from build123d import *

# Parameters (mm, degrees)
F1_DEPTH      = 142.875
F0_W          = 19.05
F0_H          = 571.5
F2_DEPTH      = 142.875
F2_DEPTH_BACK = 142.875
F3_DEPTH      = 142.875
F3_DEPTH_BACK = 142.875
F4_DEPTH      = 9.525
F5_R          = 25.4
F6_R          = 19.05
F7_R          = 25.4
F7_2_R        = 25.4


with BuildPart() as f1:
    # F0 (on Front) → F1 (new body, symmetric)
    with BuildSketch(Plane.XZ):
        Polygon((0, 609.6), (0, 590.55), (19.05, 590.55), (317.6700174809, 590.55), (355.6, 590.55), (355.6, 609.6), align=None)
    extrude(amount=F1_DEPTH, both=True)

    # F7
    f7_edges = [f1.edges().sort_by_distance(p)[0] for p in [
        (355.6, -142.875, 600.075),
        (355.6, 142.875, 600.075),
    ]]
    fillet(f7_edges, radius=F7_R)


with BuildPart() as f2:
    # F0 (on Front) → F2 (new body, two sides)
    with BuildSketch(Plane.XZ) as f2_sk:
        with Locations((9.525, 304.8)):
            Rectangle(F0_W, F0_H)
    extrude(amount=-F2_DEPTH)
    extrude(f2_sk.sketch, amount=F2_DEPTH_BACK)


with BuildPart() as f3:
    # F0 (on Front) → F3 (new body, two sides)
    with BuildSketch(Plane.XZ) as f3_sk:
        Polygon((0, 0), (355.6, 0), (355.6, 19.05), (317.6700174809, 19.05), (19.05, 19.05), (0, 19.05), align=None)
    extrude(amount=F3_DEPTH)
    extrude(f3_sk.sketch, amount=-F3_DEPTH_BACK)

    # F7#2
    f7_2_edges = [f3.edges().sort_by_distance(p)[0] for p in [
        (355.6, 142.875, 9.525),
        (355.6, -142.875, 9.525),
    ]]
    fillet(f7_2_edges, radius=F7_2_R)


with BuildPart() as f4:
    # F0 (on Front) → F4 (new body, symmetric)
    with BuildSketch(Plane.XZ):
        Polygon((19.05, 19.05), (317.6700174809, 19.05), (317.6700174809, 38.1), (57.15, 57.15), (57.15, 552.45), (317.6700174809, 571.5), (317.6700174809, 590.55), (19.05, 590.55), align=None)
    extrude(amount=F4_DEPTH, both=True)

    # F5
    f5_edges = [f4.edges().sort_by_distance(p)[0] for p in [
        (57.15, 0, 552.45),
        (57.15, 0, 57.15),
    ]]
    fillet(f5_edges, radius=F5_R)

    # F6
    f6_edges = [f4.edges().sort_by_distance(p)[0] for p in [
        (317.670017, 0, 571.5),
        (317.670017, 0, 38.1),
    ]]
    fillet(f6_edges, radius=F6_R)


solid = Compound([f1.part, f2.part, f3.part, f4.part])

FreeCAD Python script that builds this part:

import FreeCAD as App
import Part
import Sketcher

V = App.Vector
Q = App.Units.Quantity


def edges_at(feature, points):
    """Names of the edges that pass closest to the given points."""
    edges = feature.Shape.Edges
    near = lambda p: min(range(len(edges)), key=lambda i: edges[i].distToShape(Part.Vertex(*p))[0])
    return sorted({f"Edge{near(p) + 1}" for p in points})

doc = App.newDocument("Part")
body = doc.addObject("PartDesign::Body", "Body")

# Sketch on XZ plane
sketch1 = body.newObject("Sketcher::SketchObject", "Sketch")
sketch1.AttachmentSupport = (doc.getObject("XZ_Plane"), [""])
sketch1.MapMode = "FlatFace"
sketch1.addGeometry(Part.LineSegment(V(0, 610, 0), V(0, 591, 0)), False)
sketch1.addGeometry(Part.LineSegment(V(0, 591, 0), V(356, 591, 0)), False)
sketch1.addGeometry(Part.LineSegment(V(356, 591, 0), V(356, 610, 0)), False)
sketch1.addGeometry(Part.LineSegment(V(356, 610, 0), V(0, 610, 0)), False)
sketch1.addConstraint(Sketcher.Constraint("Coincident", 0, 2, 1, 1))
sketch1.addConstraint(Sketcher.Constraint("Coincident", 1, 2, 2, 1))
sketch1.addConstraint(Sketcher.Constraint("Coincident", 2, 2, 3, 1))
sketch1.addConstraint(Sketcher.Constraint("Coincident", 3, 2, 0, 1))
sketch1.addConstraint(Sketcher.Constraint("Vertical", 0))
sketch1.addConstraint(Sketcher.Constraint("Horizontal", 1))
sketch1.addConstraint(Sketcher.Constraint("Vertical", 2))
sketch1.addConstraint(Sketcher.Constraint("Horizontal", 3))
sketch1.addConstraint(Sketcher.Constraint("PointOnObject", 0, 2, -2))
sketch1.addConstraint(Sketcher.Constraint("DistanceX", 1, 1, 1, 2, Q("14 in")))
sketch1.addConstraint(Sketcher.Constraint("DistanceY", -1, 1, 2, 2, Q("24 in")))
sketch1.addConstraint(Sketcher.Constraint("DistanceY", 0, 2, 0, 1, Q("0.75 in")))
pad1 = body.newObject("PartDesign::Pad", "Pad")
pad1.Profile = sketch1
pad1.Length = Q("11.25 in")
pad1.Midplane = True
doc.recompute()

fillet = body.newObject("PartDesign::Fillet", "Fillet")
fillet.Base = (pad1, edges_at(pad1, [(355.6, -142.875, 600.075), (355.6, 142.875, 600.075)]))
fillet.Radius = Q("1 in")
body2 = doc.addObject("PartDesign::Body", "Body001")

# Sketch on XZ plane
sketch2 = body2.newObject("Sketcher::SketchObject", "Sketch001")
sketch2.AttachmentSupport = (doc.getObject("XZ_Plane001"), [""])
sketch2.MapMode = "FlatFace"
sketch2.addGeometry(Part.LineSegment(V(0, 591, 0), V(0, 19, 0)), False)
sketch2.addGeometry(Part.LineSegment(V(0, 19, 0), V(19, 19, 0)), False)
sketch2.addGeometry(Part.LineSegment(V(19, 19, 0), V(19, 591, 0)), False)
sketch2.addGeometry(Part.LineSegment(V(19, 591, 0), V(0, 591, 0)), False)
sketch2.addConstraint(Sketcher.Constraint("Coincident", 0, 2, 1, 1))
sketch2.addConstraint(Sketcher.Constraint("Coincident", 1, 2, 2, 1))
sketch2.addConstraint(Sketcher.Constraint("Coincident", 2, 2, 3, 1))
sketch2.addConstraint(Sketcher.Constraint("Coincident", 3, 2, 0, 1))
sketch2.addConstraint(Sketcher.Constraint("Vertical", 0))
sketch2.addConstraint(Sketcher.Constraint("Horizontal", 1))
sketch2.addConstraint(Sketcher.Constraint("Vertical", 2))
sketch2.addConstraint(Sketcher.Constraint("Horizontal", 3))
sketch2.addConstraint(Sketcher.Constraint("PointOnObject", 0, 2, -2))
sketch2.addConstraint(Sketcher.Constraint("DistanceY", 0, 2, 0, 1, Q("22.5 in")))
sketch2.addConstraint(Sketcher.Constraint("DistanceX", 1, 1, 1, 2, Q("0.75 in")))
sketch2.addConstraint(Sketcher.Constraint("DistanceY", -1, 1, 0, 2, Q("0.75 in")))
pad2 = body2.newObject("PartDesign::Pad", "Pad001")
pad2.Profile = sketch2
pad2.Type = "TwoLengths"
pad2.Length = Q("5.625 in")
pad2.Length2 = Q("5.625 in")
pad2.Reversed = True
body3 = doc.addObject("PartDesign::Body", "Body002")

# Sketch on XZ plane
sketch3 = body3.newObject("Sketcher::SketchObject", "Sketch002")
sketch3.AttachmentSupport = (doc.getObject("XZ_Plane002"), [""])
sketch3.MapMode = "FlatFace"
sketch3.addGeometry(Part.LineSegment(V(0, 0, 0), V(356, 0, 0)), False)
sketch3.addGeometry(Part.LineSegment(V(356, 0, 0), V(356, 19, 0)), False)
sketch3.addGeometry(Part.LineSegment(V(356, 19, 0), V(0, 19, 0)), False)
sketch3.addGeometry(Part.LineSegment(V(0, 19, 0), V(0, 0, 0)), False)
sketch3.addConstraint(Sketcher.Constraint("Coincident", 0, 2, 1, 1))
sketch3.addConstraint(Sketcher.Constraint("Coincident", 1, 2, 2, 1))
sketch3.addConstraint(Sketcher.Constraint("Coincident", 2, 2, 3, 1))
sketch3.addConstraint(Sketcher.Constraint("Coincident", 3, 2, 0, 1))
sketch3.addConstraint(Sketcher.Constraint("Horizontal", 0))
sketch3.addConstraint(Sketcher.Constraint("Vertical", 1))
sketch3.addConstraint(Sketcher.Constraint("Horizontal", 2))
sketch3.addConstraint(Sketcher.Constraint("Vertical", 3))
sketch3.addConstraint(Sketcher.Constraint("Coincident", 3, 2, -1, 1))
sketch3.addConstraint(Sketcher.Constraint("DistanceX", 0, 1, 0, 2, Q("14 in")))
sketch3.addConstraint(Sketcher.Constraint("DistanceY", 1, 1, 1, 2, Q("0.75 in")))
pad3 = body3.newObject("PartDesign::Pad", "Pad002")
pad3.Profile = sketch3
pad3.Type = "TwoLengths"
pad3.Length = Q("5.625 in")
pad3.Length2 = Q("5.625 in")
doc.recompute()

fillet2 = body3.newObject("PartDesign::Fillet", "Fillet001")
fillet2.Base = (pad3, edges_at(pad3, [(355.6, 142.875, 9.525), (355.6, -142.875, 9.525)]))
fillet2.Radius = Q("1 in")
body4 = doc.addObject("PartDesign::Body", "Body003")

# Sketch on XZ plane
sketch4 = body4.newObject("Sketcher::SketchObject", "Sketch003")
sketch4.AttachmentSupport = (doc.getObject("XZ_Plane003"), [""])
sketch4.MapMode = "FlatFace"
sketch4.addGeometry(Part.LineSegment(V(19, 19, 0), V(318, 19, 0)), False)
sketch4.addGeometry(Part.LineSegment(V(318, 19, 0), V(318, 38, 0)), False)
sketch4.addGeometry(Part.LineSegment(V(318, 38, 0), V(57, 57, 0)), False)
sketch4.addGeometry(Part.LineSegment(V(57, 57, 0), V(57, 552, 0)), False)
sketch4.addGeometry(Part.LineSegment(V(57, 552, 0), V(318, 572, 0)), False)
sketch4.addGeometry(Part.LineSegment(V(318, 572, 0), V(318, 591, 0)), False)
sketch4.addGeometry(Part.LineSegment(V(318, 591, 0), V(19, 591, 0)), False)
sketch4.addGeometry(Part.LineSegment(V(19, 591, 0), V(19, 19, 0)), False)
sketch4.addConstraint(Sketcher.Constraint("Coincident", 0, 2, 1, 1))
sketch4.addConstraint(Sketcher.Constraint("Coincident", 1, 2, 2, 1))
sketch4.addConstraint(Sketcher.Constraint("Coincident", 2, 2, 3, 1))
sketch4.addConstraint(Sketcher.Constraint("Coincident", 3, 2, 4, 1))
sketch4.addConstraint(Sketcher.Constraint("Coincident", 4, 2, 5, 1))
sketch4.addConstraint(Sketcher.Constraint("Coincident", 5, 2, 6, 1))
sketch4.addConstraint(Sketcher.Constraint("Coincident", 6, 2, 7, 1))
sketch4.addConstraint(Sketcher.Constraint("Coincident", 7, 2, 0, 1))
sketch4.addConstraint(Sketcher.Constraint("Horizontal", 0))
sketch4.addConstraint(Sketcher.Constraint("Vertical", 1))
sketch4.addConstraint(Sketcher.Constraint("Vertical", 3))
sketch4.addConstraint(Sketcher.Constraint("Vertical", 5))
sketch4.addConstraint(Sketcher.Constraint("Horizontal", 6))
sketch4.addConstraint(Sketcher.Constraint("Vertical", 7))
sketch4.addConstraint(Sketcher.Constraint("Vertical", 1, 2, 4, 2))
sketch4.addConstraint(Sketcher.Constraint("Equal", 1, 5))
sketch4.addConstraint(Sketcher.Constraint("Equal", 2, 4))
sketch4.addConstraint(Sketcher.Constraint("DistanceY", 3, 1, 3, 2, Q("19.5 in")))
sketch4.addConstraint(Sketcher.Constraint("DistanceY", 7, 2, 7, 1, Q("22.5 in")))
sketch4.addConstraint(Sketcher.Constraint("DistanceY", 1, 2, 4, 2, Q("21 in")))
sketch4.addConstraint(Sketcher.Constraint("DistanceY", -1, 1, 1, 2, Q("1.5 in")))
sketch4.addConstraint(Sketcher.Constraint("DistanceX", 6, 2, 3, 2, Q("1.5 in")))
sketch4.addConstraint(Sketcher.Constraint("DistanceX", -1, 1, 2, 2, Q("2.25 in")))
sketch4.addConstraint(Sketcher.Constraint("DistanceX", 0, 1, 0, 2, 298.620017))
pad4 = body4.newObject("PartDesign::Pad", "Pad003")
pad4.Profile = sketch4
pad4.Length = Q("0.75 in")
pad4.Midplane = True
doc.recompute()

fillet3 = body4.newObject("PartDesign::Fillet", "Fillet002")
fillet3.Base = (pad4, edges_at(pad4, [(57.15, 0, 552.45), (57.15, 0, 57.15)]))
fillet3.Radius = Q("1 in")
doc.recompute()

fillet4 = body4.newObject("PartDesign::Fillet", "Fillet003")
fillet4.Base = (fillet3, edges_at(fillet3, [(317.67, 0, 571.5), (317.67, 0, 38.1)]))
fillet4.Radius = Q("0.75 in")

doc.recompute()
